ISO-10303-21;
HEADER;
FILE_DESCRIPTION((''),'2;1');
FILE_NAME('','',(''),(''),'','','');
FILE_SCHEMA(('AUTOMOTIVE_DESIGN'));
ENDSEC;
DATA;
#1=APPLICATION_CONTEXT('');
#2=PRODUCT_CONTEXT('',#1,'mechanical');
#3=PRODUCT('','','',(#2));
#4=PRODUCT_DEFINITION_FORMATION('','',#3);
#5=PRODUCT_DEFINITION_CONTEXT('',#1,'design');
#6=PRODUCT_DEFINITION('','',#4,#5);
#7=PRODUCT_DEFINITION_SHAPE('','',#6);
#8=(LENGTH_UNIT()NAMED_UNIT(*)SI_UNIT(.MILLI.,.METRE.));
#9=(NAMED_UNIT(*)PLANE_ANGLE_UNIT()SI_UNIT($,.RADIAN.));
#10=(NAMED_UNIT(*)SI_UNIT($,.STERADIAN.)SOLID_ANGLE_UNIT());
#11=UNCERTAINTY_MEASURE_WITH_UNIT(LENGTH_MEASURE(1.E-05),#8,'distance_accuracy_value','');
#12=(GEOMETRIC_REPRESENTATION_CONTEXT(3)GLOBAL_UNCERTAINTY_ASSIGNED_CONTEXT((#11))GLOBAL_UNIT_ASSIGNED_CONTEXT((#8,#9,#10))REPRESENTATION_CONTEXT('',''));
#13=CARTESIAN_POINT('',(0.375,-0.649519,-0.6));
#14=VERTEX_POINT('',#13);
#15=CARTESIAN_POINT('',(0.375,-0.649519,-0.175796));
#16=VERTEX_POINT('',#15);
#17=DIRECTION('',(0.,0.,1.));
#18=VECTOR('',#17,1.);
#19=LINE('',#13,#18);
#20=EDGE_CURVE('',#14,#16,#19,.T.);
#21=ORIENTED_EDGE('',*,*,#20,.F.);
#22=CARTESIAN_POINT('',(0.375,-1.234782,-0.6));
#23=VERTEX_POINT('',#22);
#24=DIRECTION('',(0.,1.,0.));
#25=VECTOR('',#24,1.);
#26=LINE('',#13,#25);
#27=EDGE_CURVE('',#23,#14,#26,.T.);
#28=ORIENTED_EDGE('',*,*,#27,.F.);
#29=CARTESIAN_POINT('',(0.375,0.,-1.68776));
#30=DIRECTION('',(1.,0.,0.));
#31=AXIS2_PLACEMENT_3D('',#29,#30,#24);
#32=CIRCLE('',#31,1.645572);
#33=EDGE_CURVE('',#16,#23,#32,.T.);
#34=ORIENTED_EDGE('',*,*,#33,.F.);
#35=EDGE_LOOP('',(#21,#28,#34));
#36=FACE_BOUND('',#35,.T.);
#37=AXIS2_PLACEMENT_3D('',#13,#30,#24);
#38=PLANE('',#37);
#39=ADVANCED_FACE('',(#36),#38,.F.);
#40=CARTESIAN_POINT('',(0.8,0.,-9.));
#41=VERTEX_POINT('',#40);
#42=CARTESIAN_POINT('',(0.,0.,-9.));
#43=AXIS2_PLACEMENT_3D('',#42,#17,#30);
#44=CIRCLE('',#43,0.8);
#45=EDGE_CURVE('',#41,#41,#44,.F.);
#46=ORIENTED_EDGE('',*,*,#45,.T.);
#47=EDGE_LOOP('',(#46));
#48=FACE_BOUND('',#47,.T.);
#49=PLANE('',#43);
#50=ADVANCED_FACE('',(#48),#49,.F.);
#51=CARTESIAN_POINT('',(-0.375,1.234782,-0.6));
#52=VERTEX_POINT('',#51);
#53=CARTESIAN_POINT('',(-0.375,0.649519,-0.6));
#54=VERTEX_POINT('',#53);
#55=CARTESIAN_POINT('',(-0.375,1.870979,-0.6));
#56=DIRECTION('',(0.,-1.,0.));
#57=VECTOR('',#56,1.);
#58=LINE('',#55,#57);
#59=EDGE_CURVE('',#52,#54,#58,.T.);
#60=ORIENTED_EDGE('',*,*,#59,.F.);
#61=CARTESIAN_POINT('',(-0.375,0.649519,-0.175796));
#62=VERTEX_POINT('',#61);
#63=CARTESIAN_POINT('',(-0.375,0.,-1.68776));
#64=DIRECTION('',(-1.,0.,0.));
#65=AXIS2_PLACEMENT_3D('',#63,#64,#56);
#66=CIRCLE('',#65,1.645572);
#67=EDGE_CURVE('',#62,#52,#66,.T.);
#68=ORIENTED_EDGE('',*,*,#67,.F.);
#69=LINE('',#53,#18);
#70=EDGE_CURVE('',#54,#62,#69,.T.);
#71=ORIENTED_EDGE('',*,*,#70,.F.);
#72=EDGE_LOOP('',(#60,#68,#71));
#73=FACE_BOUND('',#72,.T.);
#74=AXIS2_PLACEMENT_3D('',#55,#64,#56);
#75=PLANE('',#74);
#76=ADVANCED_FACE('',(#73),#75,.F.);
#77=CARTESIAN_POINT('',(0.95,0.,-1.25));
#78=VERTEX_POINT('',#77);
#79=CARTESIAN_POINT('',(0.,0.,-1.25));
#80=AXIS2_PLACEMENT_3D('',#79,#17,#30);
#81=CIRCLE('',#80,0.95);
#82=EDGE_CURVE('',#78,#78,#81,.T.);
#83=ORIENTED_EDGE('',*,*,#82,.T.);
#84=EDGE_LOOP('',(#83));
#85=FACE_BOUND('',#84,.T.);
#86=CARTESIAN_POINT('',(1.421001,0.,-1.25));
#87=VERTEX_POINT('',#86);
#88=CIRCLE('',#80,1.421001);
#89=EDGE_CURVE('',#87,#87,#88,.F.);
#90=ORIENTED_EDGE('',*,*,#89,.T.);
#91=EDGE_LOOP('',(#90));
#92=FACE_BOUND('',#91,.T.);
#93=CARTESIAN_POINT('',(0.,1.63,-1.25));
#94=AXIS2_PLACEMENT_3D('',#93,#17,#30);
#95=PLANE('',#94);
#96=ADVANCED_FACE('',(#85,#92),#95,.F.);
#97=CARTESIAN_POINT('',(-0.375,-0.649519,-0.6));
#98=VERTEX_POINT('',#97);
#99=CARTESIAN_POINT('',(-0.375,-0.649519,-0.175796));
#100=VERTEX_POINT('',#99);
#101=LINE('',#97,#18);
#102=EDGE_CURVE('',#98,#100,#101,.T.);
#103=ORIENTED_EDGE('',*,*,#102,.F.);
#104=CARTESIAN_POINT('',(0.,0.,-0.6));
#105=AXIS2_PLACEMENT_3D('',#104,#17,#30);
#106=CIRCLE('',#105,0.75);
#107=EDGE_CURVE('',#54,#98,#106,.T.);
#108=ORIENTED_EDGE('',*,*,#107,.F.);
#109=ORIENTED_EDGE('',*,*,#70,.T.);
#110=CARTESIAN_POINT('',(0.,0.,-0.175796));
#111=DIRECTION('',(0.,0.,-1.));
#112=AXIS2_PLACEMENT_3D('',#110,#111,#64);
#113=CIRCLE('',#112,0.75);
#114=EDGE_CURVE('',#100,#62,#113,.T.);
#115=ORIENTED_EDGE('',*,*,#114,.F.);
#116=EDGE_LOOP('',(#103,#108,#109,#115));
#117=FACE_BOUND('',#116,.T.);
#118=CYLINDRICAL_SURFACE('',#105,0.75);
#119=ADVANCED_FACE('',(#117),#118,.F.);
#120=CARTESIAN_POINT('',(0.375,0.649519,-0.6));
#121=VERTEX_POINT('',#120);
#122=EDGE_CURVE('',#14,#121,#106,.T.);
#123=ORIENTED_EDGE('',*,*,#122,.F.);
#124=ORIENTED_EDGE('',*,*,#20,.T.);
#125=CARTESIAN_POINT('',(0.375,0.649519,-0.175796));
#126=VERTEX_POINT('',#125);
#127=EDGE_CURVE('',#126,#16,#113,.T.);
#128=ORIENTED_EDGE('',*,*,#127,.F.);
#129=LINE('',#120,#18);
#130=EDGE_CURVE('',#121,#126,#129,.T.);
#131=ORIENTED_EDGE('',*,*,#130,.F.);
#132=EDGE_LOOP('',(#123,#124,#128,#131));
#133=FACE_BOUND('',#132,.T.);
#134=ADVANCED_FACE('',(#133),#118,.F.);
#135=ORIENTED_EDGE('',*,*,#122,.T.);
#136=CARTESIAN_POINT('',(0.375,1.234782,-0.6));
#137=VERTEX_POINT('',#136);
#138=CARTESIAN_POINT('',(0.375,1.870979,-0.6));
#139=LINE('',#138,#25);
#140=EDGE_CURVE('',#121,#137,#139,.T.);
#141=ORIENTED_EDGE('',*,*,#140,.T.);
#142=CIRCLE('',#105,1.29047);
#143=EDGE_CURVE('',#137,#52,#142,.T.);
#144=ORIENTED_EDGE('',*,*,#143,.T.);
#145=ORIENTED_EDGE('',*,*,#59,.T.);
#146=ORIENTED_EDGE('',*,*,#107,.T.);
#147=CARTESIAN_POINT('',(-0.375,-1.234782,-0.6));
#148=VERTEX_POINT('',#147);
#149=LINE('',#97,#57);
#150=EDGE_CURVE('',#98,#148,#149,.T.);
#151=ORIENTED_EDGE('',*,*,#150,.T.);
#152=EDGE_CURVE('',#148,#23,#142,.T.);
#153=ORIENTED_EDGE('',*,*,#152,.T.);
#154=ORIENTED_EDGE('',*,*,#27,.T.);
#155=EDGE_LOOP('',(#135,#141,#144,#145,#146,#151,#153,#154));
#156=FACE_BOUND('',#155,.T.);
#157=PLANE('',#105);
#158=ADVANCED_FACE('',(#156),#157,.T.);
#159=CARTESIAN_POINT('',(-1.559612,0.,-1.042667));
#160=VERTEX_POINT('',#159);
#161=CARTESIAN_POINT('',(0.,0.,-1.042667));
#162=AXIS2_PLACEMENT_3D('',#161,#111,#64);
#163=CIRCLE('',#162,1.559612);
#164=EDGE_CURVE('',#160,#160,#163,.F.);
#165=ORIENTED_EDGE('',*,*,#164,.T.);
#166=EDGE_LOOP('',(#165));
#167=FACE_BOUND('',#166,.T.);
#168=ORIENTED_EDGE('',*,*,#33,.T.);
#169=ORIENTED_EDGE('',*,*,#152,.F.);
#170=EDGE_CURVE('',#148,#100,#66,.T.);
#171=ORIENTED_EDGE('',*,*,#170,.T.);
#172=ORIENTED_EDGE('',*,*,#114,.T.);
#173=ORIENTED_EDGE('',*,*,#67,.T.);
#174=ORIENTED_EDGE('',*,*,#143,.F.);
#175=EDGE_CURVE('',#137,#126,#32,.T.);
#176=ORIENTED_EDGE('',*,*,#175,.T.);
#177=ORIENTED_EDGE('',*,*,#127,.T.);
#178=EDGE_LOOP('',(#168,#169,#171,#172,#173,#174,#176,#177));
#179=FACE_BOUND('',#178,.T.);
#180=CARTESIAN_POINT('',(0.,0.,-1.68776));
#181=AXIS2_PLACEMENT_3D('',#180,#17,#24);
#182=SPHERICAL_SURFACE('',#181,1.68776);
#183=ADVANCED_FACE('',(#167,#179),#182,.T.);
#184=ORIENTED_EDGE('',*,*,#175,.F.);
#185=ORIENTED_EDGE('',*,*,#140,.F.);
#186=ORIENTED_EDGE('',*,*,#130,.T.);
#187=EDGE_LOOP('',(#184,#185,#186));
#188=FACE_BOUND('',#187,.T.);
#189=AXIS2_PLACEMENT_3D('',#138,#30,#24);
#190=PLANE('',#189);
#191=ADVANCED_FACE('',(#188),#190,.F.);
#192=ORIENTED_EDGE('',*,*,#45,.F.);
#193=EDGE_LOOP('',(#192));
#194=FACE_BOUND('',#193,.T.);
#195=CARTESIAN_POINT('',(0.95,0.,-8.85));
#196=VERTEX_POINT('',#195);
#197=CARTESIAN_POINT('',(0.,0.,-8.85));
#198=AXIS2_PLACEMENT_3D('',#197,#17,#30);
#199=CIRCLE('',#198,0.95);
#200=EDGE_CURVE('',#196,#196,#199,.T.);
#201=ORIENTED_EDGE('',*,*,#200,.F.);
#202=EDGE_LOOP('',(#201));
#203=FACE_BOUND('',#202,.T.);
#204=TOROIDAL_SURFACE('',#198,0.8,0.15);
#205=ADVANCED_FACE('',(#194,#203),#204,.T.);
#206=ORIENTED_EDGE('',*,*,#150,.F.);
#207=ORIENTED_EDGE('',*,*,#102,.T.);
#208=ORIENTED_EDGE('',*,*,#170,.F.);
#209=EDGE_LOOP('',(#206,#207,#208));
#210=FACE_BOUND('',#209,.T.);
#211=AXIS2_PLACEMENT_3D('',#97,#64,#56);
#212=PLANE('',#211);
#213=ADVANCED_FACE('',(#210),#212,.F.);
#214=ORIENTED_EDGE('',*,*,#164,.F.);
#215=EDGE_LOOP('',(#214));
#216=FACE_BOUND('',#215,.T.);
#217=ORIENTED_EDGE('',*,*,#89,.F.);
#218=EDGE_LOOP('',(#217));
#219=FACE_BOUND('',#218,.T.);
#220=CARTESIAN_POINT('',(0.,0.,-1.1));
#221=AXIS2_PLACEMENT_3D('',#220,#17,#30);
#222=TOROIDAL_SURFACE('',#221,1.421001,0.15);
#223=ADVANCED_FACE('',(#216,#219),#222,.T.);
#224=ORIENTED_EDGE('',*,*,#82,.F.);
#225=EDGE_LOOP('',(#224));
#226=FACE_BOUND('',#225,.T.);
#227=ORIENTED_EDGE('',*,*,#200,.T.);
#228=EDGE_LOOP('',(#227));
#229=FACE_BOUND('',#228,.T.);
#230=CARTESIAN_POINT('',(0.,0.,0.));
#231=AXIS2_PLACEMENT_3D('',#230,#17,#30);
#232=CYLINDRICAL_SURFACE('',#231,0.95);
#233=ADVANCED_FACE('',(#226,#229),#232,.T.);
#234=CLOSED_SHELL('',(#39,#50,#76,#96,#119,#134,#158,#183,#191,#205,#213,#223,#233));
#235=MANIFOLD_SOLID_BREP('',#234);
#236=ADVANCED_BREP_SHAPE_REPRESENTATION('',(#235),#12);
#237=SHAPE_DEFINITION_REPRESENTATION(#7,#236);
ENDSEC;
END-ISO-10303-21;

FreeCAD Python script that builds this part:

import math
import FreeCAD as App
import Part
import Sketcher
from FreeCAD import Vector


def edges_at(feature, points):
    """Names of the edges that pass closest to the given points."""
    edges = feature.Shape.Edges
    near = lambda p: min(range(len(edges)), key=lambda i: edges[i].distToShape(Part.Vertex(*p))[0])
    return sorted({f"Edge{near(p) + 1}" for p in points})

doc = App.newDocument("Part")
params = doc.addObject("Spreadsheet::Sheet", "Params")
for row, (alias, value) in enumerate([
    ("sketch1_height", "9 mm"),
    ("sketch1_width", "0.95 mm"),
    ("sketch1_width2", "0.68 mm"),
    ("sketch1_height2", "7.75 mm"),
    ("revolution_angle", "360 deg"),
    ("sketch2_radius", "0.75 mm"),
    ("sketch2_width", "0.75 mm"),
    ("pocket1_length", "0.6 mm"),
    ("fillet_radius", "0.15 mm"),
], start=1):
    params.set(f"A{row}", alias)
    params.set(f"B{row}", "=" + value)
    params.setAlias(f"B{row}", alias)

body = doc.addObject("PartDesign::Body", "Body")

sketch1 = doc.addObject("Sketcher::SketchObject", "Sketch")
body.addObject(sketch1)
sketch1.AttachmentSupport = (doc.YZ_Plane, [""])
sketch1.MapMode = "FlatFace"
sketch1.addGeometry([
    Part.LineSegment(Vector(0, 0, 0), Vector(0, -9, 0)),
    Part.LineSegment(Vector(0, -9, 0), Vector(0.95, -9, 0)),
    Part.LineSegment(Vector(0.95, -9, 0), Vector(0.95, -1.25, 0)),
    Part.LineSegment(Vector(0.95, -1.25, 0), Vector(1.63, -1.25, 0)),
    Part.ArcOfCircle(Part.Circle(Vector(0, -1.68776, 0), Vector(0, 0, 1), 1.68776), math.radians(15.032883), math.radians(90)),
], False)
sketch1.addConstraint([
    Sketcher.Constraint("Coincident", 0, 2, 1, 1),
    Sketcher.Constraint("Coincident", 1, 2, 2, 1),
    Sketcher.Constraint("Coincident", 2, 2, 3, 1),
    Sketcher.Constraint("Coincident", 3, 2, 4, 1),
    Sketcher.Constraint("Coincident", 4, 2, 0, 1),
    Sketcher.Constraint("Vertical", 0),
    Sketcher.Constraint("Horizontal", 1),
    Sketcher.Constraint("Vertical", 2),
    Sketcher.Constraint("Horizontal", 3),
    Sketcher.Constraint("Coincident", 4, 2, -1, 1),
    Sketcher.Constraint("PointOnObject", 4, 3, -2),
    Sketcher.Constraint("DistanceY", 0, 2, 0, 1, 9.0),
    Sketcher.Constraint("DistanceX", 1, 1, 1, 2, 0.95),
    Sketcher.Constraint("DistanceX", 3, 1, 3, 2, 0.68),
    Sketcher.Constraint("DistanceY", 2, 1, 2, 2, 7.75),
])
sketch1.setExpression("Constraints[11]", "Params.sketch1_height")
sketch1.setExpression("Constraints[12]", "Params.sketch1_width")
sketch1.setExpression("Constraints[13]", "Params.sketch1_width2")
sketch1.setExpression("Constraints[14]", "Params.sketch1_height2")
revolution = doc.addObject("PartDesign::Revolution", "Revolution")
body.addObject(revolution)
revolution.Profile = sketch1
revolution.ReferenceAxis = (sketch1, ["V_Axis"])
revolution.setExpression("Angle", "Params.revolution_angle")

sketch2 = doc.addObject("Sketcher::SketchObject", "Sketch001")
body.addObject(sketch2)
sketch2.AttachmentSupport = (doc.XY_Plane, [""])
sketch2.MapMode = "FlatFace"
sketch2.addGeometry([
    Part.LineSegment(Vector(-0.375, -0.649519, 0), Vector(-0.375, -1.870979, 0)),
    Part.LineSegment(Vector(-0.375, -1.870979, 0), Vector(0.375, -1.870979, 0)),
    Part.LineSegment(Vector(0.375, -1.870979, 0), Vector(0.375, -0.649519, 0)),
    Part.ArcOfCircle(Part.Circle(Vector(0, 0, 0), Vector(0, 0, 1), 0.75), math.radians(-60), math.radians(60)),
    Part.LineSegment(Vector(0.375, 0.649519, 0), Vector(0.375, 1.870979, 0)),
    Part.LineSegment(Vector(0.375, 1.870979, 0), Vector(-0.375, 1.870979, 0)),
    Part.LineSegment(Vector(-0.375, 1.870979, 0), Vector(-0.375, 0.649519, 0)),
    Part.ArcOfCircle(Part.Circle(Vector(0, 0, 0), Vector(0, 0, 1), 0.75), math.radians(120), math.radians(240)),
], False)
sketch2.addConstraint([
    Sketcher.Constraint("Coincident", 0, 2, 1, 1),
    Sketcher.Constraint("Coincident", 1, 2, 2, 1),
    Sketcher.Constraint("Coincident", 2, 2, 3, 1),
    Sketcher.Constraint("Coincident", 3, 2, 4, 1),
    Sketcher.Constraint("Coincident", 4, 2, 5, 1),
    Sketcher.Constraint("Coincident", 5, 2, 6, 1),
    Sketcher.Constraint("Coincident", 6, 2, 7, 1),
    Sketcher.Constraint("Coincident", 7, 2, 0, 1),
    Sketcher.Constraint("Vertical", 0),
    Sketcher.Constraint("Horizontal", 1),
    Sketcher.Constraint("Vertical", 2),
    Sketcher.Constraint("Vertical", 4),
    Sketcher.Constraint("Horizontal", 5),
    Sketcher.Constraint("Vertical", 6),
    Sketcher.Constraint("Coincident", 3, 3, -1, 1),
    Sketcher.Constraint("Coincident", 7, 3, -1, 1),
    Sketcher.Constraint("Equal", 3, 7),
    Sketcher.Constraint("Symmetric", 0, 2, 4, 2, -1, 1),
    Sketcher.Constraint("Horizontal", 3, 2, 6, 2),
    Sketcher.Constraint("Horizontal", 2, 2, 7, 2),
    Sketcher.Constraint("Radius", 3, 0.75),
    Sketcher.Constraint("DistanceX", 1, 1, 1, 2, 0.75),
    Sketcher.Constraint("DistanceY", 0, 2, 0, 1, 1.22146),
])
sketch2.setExpression("Constraints[20]", "Params.sketch2_radius")
sketch2.setExpression("Constraints[21]", "Params.sketch2_width")
pocket1 = doc.addObject("PartDesign::Pocket", "Pocket")
body.addObject(pocket1)
pocket1.Profile = sketch2
pocket1.setExpression("Length", "Params.pocket1_length")
doc.recompute()

fillet = doc.addObject("PartDesign::Fillet", "Fillet")
body.addObject(fillet)
fillet.Base = (pocket1, edges_at(pocket1, [(0, -1.63, -1.25), (0, -0.95, -9)]))
fillet.setExpression("Radius", "Params.fillet_radius")

doc.recompute()
